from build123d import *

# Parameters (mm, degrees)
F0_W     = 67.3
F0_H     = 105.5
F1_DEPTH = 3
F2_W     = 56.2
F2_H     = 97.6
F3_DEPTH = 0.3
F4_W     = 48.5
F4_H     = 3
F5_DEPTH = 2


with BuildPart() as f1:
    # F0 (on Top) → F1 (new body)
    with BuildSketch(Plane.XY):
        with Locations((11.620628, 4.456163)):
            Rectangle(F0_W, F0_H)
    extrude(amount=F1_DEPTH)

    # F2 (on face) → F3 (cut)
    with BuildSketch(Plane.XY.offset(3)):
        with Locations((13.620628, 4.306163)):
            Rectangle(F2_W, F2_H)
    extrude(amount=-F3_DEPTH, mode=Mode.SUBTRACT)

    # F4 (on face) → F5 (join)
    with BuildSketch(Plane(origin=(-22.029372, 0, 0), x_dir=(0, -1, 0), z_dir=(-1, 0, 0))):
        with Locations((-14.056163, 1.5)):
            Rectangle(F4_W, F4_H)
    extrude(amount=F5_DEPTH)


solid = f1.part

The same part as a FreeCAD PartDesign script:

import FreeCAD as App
import Part
import Sketcher
from FreeCAD import Vector


def add_polygon(sketch, points):
    """Adds a closed chain of lines whose ends are joined by coincident constraints."""
    first, n = sketch.GeometryCount, len(points)
    for a, b in zip(points, points[1:] + points[:1]):
        sketch.addGeometry(Part.LineSegment(App.Vector(*a, 0), App.Vector(*b, 0)), False)
    for i in range(n):
        sketch.addConstraint(Sketcher.Constraint("Coincident", first + i, 2, first + (i + 1) % n, 1))

doc = App.newDocument("Part")
body = doc.addObject("PartDesign::Body", "Body")

# Sketch on XY plane
sketch1 = body.newObject("Sketcher::SketchObject", "Sketch")
sketch1.AttachmentSupport = (doc.getObject("XY_Plane"), [""])
sketch1.MapMode = "FlatFace"
add_polygon(sketch1, [(-22, 57), (-22, -48), (45, -48), (45, 57)])  # lines 0-3
sketch1.addConstraint(Sketcher.Constraint("Vertical", 0))
sketch1.addConstraint(Sketcher.Constraint("Horizontal", 1))
sketch1.addConstraint(Sketcher.Constraint("Vertical", 2))
sketch1.addConstraint(Sketcher.Constraint("Horizontal", 3))
sketch1.addConstraint(Sketcher.Constraint("DistanceX", 1, 1, 1, 2, 67.3))
sketch1.addConstraint(Sketcher.Constraint("DistanceY", 0, 2, 0, 1, 105.5))
sketch1.addConstraint(Sketcher.Constraint("DistanceX", 0, 2, -1, 1, 22.029372))
sketch1.addConstraint(Sketcher.Constraint("DistanceY", 0, 2, -1, 1, 48.293837))
pad1 = body.newObject("PartDesign::Pad", "Pad")
pad1.Profile = sketch1
pad1.Length = 3

# Sketch on XY plane
sketch2 = body.newObject("Sketcher::SketchObject", "Sketch001")
sketch2.AttachmentSupport = (doc.getObject("XY_Plane"), [""])
sketch2.MapMode = "FlatFace"
sketch2.AttachmentOffset = App.Placement(Vector(0, 0, 3), App.Rotation())
add_polygon(sketch2, [(-14, 53), (-14, -44), (42, -44), (42, 53)])  # lines 0-3
sketch2.addConstraint(Sketcher.Constraint("Vertical", 0))
sketch2.addConstraint(Sketcher.Constraint("Horizontal", 1))
sketch2.addConstraint(Sketcher.Constraint("Vertical", 2))
sketch2.addConstraint(Sketcher.Constraint("Horizontal", 3))
sketch2.addConstraint(Sketcher.Constraint("DistanceX", 1, 1, 1, 2, 56.2))
sketch2.addConstraint(Sketcher.Constraint("DistanceY", 0, 2, 0, 1, 97.6))
sketch2.addConstraint(Sketcher.Constraint("DistanceX", 0, 2, -1, 1, 14.479372))
sketch2.addConstraint(Sketcher.Constraint("DistanceY", 0, 2, -1, 1, 44.493837))
pocket1 = body.newObject("PartDesign::Pocket", "Pocket")
pocket1.Profile = sketch2
pocket1.Length = 0.3

# Sketch on YZ plane
sketch3 = body.newObject("Sketcher::SketchObject", "Sketch002")
sketch3.AttachmentSupport = (doc.getObject("YZ_Plane"), [""])
sketch3.MapMode = "FlatFace"
sketch3.AttachmentOffset = App.Placement(Vector(0, 0, -22.029372), App.Rotation())
add_polygon(sketch3, [(38.3, 3), (38.3, 0), (-10.2, 0), (-10.2, 3)])  # lines 0-3
sketch3.addConstraint(Sketcher.Constraint("Vertical", 0))
sketch3.addConstraint(Sketcher.Constraint("Horizontal", 1))
sketch3.addConstraint(Sketcher.Constraint("Vertical", 2))
sketch3.addConstraint(Sketcher.Constraint("Horizontal", 3))
sketch3.addConstraint(Sketcher.Constraint("PointOnObject", 0, 2, -1))
sketch3.addConstraint(Sketcher.Constraint("DistanceY", 0, 2, 0, 1, 3.0))
sketch3.addConstraint(Sketcher.Constraint("DistanceX", 1, 2, 1, 1, 48.5))
sketch3.addConstraint(Sketcher.Constraint("DistanceX", -1, 1, 0, 2, 38.306163))
pad2 = body.newObject("PartDesign::Pad", "Pad001")
pad2.Profile = sketch3
pad2.Length = 2
pad2.Reversed = True

doc.recompute()
